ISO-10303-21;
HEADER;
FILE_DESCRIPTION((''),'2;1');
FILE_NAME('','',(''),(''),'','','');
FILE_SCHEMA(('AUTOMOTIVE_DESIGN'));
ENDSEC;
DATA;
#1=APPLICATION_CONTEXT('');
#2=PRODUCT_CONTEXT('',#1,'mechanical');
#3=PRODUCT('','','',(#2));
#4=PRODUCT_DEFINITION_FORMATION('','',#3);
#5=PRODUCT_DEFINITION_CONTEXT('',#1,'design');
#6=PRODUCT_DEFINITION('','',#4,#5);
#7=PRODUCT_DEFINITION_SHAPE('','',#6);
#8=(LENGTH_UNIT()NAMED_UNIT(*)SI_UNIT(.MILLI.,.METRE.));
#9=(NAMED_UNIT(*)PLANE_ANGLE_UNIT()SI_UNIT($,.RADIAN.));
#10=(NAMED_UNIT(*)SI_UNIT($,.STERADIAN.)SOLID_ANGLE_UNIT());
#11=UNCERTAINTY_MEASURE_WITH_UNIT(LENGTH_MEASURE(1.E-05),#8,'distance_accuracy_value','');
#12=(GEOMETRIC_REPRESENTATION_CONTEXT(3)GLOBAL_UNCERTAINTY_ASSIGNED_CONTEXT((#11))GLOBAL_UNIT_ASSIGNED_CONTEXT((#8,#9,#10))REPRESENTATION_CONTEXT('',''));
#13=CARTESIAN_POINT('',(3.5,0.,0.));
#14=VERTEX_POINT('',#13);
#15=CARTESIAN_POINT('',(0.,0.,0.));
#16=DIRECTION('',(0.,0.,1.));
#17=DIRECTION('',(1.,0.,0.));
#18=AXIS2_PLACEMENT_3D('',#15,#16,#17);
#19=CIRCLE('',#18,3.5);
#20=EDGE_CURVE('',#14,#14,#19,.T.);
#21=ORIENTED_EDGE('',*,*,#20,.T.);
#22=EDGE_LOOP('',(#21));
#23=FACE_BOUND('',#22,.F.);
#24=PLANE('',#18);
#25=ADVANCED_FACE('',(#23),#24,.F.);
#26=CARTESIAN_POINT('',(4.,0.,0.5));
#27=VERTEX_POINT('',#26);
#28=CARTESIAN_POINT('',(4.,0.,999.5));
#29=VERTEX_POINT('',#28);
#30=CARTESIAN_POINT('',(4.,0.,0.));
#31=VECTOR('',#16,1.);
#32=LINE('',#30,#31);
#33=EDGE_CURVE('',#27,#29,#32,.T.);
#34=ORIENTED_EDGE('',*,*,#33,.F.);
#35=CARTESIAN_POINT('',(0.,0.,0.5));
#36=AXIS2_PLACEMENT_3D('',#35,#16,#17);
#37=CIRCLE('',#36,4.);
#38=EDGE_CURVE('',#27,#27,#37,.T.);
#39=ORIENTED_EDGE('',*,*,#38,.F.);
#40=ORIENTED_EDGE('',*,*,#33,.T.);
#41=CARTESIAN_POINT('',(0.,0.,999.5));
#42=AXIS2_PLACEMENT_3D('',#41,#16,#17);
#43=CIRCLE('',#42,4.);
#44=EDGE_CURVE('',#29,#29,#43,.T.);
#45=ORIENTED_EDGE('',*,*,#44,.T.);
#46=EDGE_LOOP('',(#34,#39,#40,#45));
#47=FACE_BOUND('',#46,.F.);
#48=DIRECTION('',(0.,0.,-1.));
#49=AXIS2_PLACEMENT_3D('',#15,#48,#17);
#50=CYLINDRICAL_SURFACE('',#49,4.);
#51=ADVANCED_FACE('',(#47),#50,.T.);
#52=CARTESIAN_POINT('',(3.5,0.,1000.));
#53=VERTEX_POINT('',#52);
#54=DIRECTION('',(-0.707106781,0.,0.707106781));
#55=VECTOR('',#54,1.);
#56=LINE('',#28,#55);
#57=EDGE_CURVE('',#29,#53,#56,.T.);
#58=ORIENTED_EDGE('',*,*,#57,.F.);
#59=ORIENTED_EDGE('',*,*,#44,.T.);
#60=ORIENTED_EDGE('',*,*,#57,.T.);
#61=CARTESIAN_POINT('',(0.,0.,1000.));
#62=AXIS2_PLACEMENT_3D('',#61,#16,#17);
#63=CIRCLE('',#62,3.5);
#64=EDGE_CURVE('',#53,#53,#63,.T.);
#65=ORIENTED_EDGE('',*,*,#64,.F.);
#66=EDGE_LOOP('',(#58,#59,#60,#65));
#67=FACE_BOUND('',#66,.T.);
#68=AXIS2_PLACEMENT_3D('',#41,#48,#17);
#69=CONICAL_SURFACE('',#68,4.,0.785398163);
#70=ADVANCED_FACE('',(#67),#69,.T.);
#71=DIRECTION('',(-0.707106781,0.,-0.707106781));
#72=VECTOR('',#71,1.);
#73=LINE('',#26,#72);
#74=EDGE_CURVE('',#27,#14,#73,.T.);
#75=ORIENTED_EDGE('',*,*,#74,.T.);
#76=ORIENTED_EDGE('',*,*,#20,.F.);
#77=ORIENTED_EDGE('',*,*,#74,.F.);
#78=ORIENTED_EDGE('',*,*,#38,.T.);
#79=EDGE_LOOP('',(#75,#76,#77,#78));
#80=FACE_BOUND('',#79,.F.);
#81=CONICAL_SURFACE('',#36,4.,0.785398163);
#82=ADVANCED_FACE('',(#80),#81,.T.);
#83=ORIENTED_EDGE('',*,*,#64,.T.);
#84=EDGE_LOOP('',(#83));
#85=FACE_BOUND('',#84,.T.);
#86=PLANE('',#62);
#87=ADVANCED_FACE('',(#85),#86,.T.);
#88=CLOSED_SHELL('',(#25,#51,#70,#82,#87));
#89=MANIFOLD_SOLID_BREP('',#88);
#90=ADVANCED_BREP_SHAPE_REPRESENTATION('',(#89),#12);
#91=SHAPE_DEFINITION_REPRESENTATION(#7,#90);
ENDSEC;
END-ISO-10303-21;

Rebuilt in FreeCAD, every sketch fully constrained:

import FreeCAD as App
import Part
import Sketcher

V = App.Vector


def edges_at(feature, points):
    """Names of the edges that pass closest to the given points."""
    edges = feature.Shape.Edges
    near = lambda p: min(range(len(edges)), key=lambda i: edges[i].distToShape(Part.Vertex(*p))[0])
    return sorted({f"Edge{near(p) + 1}" for p in points})

doc = App.newDocument("Part")
params = doc.addObject("Spreadsheet::Sheet", "Params")
for row, (alias, value) in enumerate([
    ("sketch1_diameter", "8 mm"),
    ("pad1_length", "1000 mm"),
    ("chamfer_size", "0.5 mm"),
], start=1):
    params.set(f"A{row}", alias)
    params.set(f"B{row}", "=" + value)
    params.setAlias(f"B{row}", alias)

body = doc.addObject("PartDesign::Body", "Body")

# Sketch on XY plane
sketch1 = body.newObject("Sketcher::SketchObject", "Sketch")
sketch1.AttachmentSupport = (doc.getObject("XY_Plane"), [""])
sketch1.MapMode = "FlatFace"
sketch1.addGeometry(Part.Circle(V(0, 0, 0), V(0, 0, 1), 4), False)
sketch1.addConstraint([
    Sketcher.Constraint("Coincident", 0, 3, -1, 1),
    Sketcher.Constraint("Diameter", 0, 8.0),
])
sketch1.setExpression("Constraints[1]", "Params.sketch1_diameter")
pad1 = body.newObject("PartDesign::Pad", "Pad")
pad1.Profile = sketch1
pad1.setExpression("Length", "Params.pad1_length")
doc.recompute()

chamfer = body.newObject("PartDesign::Chamfer", "Chamfer")
chamfer.Base = (pad1, edges_at(pad1, [(-4, 0, 0), (-4, 0, 1000)]))
chamfer.setExpression("Size", "Params.chamfer_size")

doc.recompute()
